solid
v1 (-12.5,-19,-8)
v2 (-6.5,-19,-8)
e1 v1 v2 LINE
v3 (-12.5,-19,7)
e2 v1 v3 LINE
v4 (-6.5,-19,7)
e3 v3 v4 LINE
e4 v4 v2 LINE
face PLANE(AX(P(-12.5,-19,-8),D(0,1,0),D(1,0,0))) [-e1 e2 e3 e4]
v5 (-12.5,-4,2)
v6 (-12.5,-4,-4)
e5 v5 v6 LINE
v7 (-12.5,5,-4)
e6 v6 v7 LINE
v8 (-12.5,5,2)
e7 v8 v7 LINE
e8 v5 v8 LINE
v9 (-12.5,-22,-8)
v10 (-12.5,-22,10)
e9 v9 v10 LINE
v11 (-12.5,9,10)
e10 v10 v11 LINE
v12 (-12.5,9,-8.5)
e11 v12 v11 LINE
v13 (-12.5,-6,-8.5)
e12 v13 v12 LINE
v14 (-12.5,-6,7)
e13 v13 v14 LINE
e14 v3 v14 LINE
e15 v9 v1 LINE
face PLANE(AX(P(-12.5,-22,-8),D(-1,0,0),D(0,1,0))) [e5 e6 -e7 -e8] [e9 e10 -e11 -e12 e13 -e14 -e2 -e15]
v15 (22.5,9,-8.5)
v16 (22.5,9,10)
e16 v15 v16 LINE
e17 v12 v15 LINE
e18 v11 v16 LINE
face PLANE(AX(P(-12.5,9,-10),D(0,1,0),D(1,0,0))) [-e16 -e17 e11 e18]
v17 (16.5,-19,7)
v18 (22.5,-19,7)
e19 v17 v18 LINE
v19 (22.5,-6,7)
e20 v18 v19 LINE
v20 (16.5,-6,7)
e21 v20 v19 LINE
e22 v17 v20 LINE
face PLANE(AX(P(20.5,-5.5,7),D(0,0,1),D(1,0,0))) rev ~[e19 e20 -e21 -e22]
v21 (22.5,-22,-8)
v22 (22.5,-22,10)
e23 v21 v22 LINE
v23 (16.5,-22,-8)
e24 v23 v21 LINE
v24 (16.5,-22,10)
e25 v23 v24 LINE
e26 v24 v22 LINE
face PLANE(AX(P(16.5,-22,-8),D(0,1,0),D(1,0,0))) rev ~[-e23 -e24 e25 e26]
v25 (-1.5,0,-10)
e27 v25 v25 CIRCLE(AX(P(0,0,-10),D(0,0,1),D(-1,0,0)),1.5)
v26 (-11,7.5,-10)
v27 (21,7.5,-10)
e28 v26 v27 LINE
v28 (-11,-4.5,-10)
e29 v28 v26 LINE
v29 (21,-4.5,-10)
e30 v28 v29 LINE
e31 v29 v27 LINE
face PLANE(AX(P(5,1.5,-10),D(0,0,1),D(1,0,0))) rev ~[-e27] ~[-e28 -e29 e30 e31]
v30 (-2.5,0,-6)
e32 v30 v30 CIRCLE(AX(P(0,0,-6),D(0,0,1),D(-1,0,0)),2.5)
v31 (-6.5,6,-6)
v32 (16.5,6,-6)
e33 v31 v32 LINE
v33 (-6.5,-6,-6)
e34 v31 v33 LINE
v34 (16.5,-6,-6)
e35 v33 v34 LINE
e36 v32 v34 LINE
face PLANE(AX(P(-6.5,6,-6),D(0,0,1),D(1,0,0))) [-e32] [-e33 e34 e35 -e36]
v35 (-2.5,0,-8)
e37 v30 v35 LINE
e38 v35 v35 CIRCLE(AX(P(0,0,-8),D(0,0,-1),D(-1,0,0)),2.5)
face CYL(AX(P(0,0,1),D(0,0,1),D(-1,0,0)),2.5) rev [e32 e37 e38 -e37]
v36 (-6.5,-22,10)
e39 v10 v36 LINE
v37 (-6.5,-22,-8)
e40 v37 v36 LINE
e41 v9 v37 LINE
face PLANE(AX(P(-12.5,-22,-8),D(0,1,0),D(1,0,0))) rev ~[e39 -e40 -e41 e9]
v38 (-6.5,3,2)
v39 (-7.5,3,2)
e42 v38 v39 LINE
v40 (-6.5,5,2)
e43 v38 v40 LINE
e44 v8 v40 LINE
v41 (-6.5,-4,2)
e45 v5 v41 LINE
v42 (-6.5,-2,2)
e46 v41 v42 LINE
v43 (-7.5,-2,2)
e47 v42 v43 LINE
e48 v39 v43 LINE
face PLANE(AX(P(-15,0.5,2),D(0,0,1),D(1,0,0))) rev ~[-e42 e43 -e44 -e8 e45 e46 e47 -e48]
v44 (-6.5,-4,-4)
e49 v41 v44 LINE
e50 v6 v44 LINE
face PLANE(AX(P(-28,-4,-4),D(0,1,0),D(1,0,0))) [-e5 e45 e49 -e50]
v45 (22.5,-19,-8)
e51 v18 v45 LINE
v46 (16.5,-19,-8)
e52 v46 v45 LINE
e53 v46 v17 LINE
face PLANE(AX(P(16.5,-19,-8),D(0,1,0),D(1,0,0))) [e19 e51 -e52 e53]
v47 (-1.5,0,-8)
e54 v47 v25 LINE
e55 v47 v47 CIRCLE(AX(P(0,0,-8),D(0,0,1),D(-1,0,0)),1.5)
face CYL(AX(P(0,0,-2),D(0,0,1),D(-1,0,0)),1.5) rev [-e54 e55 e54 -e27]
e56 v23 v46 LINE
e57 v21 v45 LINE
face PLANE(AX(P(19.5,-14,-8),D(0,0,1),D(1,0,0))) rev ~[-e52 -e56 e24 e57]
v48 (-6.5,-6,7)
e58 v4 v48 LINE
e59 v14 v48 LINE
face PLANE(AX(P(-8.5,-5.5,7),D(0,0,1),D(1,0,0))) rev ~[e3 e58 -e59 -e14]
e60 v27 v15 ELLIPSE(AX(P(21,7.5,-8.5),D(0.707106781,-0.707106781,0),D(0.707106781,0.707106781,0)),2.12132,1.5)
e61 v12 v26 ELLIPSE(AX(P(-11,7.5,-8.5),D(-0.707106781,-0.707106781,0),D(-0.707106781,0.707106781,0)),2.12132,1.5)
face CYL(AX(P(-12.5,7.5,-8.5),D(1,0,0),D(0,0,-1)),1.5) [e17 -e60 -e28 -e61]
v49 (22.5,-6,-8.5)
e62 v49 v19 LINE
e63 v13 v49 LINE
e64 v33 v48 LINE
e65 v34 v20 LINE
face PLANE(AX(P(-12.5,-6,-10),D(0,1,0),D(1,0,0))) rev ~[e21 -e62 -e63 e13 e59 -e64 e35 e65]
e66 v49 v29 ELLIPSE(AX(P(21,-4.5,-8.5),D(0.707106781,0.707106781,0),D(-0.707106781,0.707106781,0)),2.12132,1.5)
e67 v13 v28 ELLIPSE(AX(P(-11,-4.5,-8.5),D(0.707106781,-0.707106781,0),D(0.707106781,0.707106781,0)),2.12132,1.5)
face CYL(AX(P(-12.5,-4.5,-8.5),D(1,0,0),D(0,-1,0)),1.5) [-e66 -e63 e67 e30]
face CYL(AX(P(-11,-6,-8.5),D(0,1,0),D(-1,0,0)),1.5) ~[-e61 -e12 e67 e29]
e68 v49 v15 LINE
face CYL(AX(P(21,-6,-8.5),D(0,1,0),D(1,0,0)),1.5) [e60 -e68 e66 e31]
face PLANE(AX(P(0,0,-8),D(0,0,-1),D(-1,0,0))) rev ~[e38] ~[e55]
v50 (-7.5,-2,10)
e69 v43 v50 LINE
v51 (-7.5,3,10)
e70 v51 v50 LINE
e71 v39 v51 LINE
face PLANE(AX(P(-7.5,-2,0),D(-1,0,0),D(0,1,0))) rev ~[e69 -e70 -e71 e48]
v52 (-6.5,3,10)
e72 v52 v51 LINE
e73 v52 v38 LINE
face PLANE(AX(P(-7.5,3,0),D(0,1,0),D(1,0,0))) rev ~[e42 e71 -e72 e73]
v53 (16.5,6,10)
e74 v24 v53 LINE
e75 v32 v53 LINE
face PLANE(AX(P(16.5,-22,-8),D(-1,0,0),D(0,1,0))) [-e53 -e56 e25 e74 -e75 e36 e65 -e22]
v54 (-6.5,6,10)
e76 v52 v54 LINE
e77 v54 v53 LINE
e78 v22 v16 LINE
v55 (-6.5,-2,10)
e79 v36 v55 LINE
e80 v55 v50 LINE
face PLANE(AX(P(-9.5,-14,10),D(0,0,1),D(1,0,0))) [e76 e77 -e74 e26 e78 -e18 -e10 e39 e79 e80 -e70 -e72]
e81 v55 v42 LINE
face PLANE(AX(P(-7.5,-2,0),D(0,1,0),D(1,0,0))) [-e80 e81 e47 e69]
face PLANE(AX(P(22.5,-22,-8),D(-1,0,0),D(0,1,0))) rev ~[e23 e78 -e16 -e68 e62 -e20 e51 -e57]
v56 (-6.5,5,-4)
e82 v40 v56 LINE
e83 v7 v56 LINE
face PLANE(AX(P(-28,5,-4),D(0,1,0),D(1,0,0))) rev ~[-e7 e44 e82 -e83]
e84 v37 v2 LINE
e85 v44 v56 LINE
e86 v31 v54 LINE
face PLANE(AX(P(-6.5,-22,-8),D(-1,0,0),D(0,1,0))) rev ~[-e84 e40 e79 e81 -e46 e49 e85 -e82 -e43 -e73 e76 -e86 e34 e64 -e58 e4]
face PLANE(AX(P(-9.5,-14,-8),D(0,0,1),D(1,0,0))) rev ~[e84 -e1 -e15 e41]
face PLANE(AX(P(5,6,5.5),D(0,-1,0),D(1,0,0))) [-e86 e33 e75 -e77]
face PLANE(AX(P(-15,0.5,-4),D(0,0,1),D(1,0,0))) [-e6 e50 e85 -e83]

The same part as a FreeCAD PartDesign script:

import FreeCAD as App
import Part
import Sketcher
Q = App.Units.Quantity


def edges_at(feature, points):
    """Names of the edges that pass closest to the given points."""
    edges = feature.Shape.Edges
    near = lambda p: min(range(len(edges)), key=lambda i: edges[i].distToShape(Part.Vertex(*p))[0])
    return sorted({f"Edge{near(p) + 1}" for p in points})

doc = App.newDocument("Part")
body = doc.addObject("PartDesign::Body", "Body")

sketch1 = body.newObject("Sketcher::SketchObject", "Sketch")
sketch1.AttachmentSupport = (doc.getObject("XY_Plane"), [""])
sketch1.MapMode = "FlatFace"
sketch1.AttachmentOffset = App.Placement(App.Vector(0, 0, 1), App.Rotation())
sketch1.addGeometry(Part.Circle(App.Vector(0, 0, 0), App.Vector(0, 0, 1), 2.5), False)
sketch1.addConstraint([
    Sketcher.Constraint("Coincident", 0, 3, -1, 1),
    Sketcher.Constraint("Diameter", 0, Q("5 mm")),
])
pad1 = body.newObject("PartDesign::Pad", "Pad")
pad1.Profile = sketch1
pad1.Length = 9
pad1.Reversed = True
body2 = doc.addObject("PartDesign::Body", "Body001")

sketch2 = body2.newObject("Sketcher::SketchObject", "Sketch001")
sketch2.AttachmentSupport = (doc.getObject("XY_Plane001"), [""])
sketch2.MapMode = "FlatFace"
sketch2.AttachmentOffset = App.Placement(App.Vector(0, 0, -2), App.Rotation())
sketch2.addGeometry(Part.Circle(App.Vector(0, 0, 0), App.Vector(0, 0, 1), 1.5), False)
sketch2.addConstraint([
    Sketcher.Constraint("Coincident", 0, 3, -1, 1),
    Sketcher.Constraint("Diameter", 0, Q("3 mm")),
])
pad2 = body2.newObject("PartDesign::Pad", "Pad001")
pad2.Profile = sketch2
pad2.Length = 14
pad2.Reversed = True
doc.recompute()

boolean = body2.newObject("PartDesign::Boolean", "Boolean")
boolean.Type = "Fuse"
boolean.addObjects([body])
body3 = doc.addObject("PartDesign::Body", "Body002")

sketch3 = body3.newObject("Sketcher::SketchObject", "Sketch002")
sketch3.AttachmentSupport = (doc.getObject("XY_Plane002"), [""])
sketch3.MapMode = "FlatFace"
sketch3.addGeometry([
    Part.LineSegment(App.Vector(-7.5, 3, 0), App.Vector(-7.5, -2, 0)),
    Part.LineSegment(App.Vector(-7.5, -2, 0), App.Vector(-5.5, -2, 0)),
    Part.LineSegment(App.Vector(-5.5, -2, 0), App.Vector(-5.5, 3, 0)),
    Part.LineSegment(App.Vector(-5.5, 3, 0), App.Vector(-7.5, 3, 0)),
], False)
sketch3.addConstraint([
    Sketcher.Constraint("Coincident", 0, 2, 1, 1),
    Sketcher.Constraint("Coincident", 1, 2, 2, 1),
    Sketcher.Constraint("Coincident", 2, 2, 3, 1),
    Sketcher.Constraint("Coincident", 3, 2, 0, 1),
    Sketcher.Constraint("Vertical", 0),
    Sketcher.Constraint("Horizontal", 1),
    Sketcher.Constraint("Vertical", 2),
    Sketcher.Constraint("Horizontal", 3),
    Sketcher.Constraint("DistanceX", 1, 1, 1, 2, Q("2 mm")),
    Sketcher.Constraint("DistanceY", 0, 2, 0, 1, Q("5 mm")),
    Sketcher.Constraint("DistanceY", 0, 2, -1, 1, Q("2 mm")),
    Sketcher.Constraint("DistanceX", 0, 2, -1, 1, Q("7.5 mm")),
])
pad3 = body3.newObject("PartDesign::Pad", "Pad002")
pad3.Profile = sketch3
pad3.Length = 14
body4 = doc.addObject("PartDesign::Body", "Body003")

sketch4 = body4.newObject("Sketcher::SketchObject", "Sketch003")
sketch4.AttachmentSupport = (doc.getObject("XY_Plane003"), [""])
sketch4.MapMode = "FlatFace"
sketch4.AttachmentOffset = App.Placement(App.Vector(0, 0, -8), App.Rotation())
sketch4.addGeometry([
    Part.LineSegment(App.Vector(16, 8, 0), App.Vector(16, -19, 0)),
    Part.LineSegment(App.Vector(16, -19, 0), App.Vector(24, -19, 0)),
    Part.LineSegment(App.Vector(24, -19, 0), App.Vector(24, 8, 0)),
    Part.LineSegment(App.Vector(24, 8, 0), App.Vector(16, 8, 0)),
], False)
sketch4.addConstraint([
    Sketcher.Constraint("Coincident", 0, 2, 1, 1),
    Sketcher.Constraint("Coincident", 1, 2, 2, 1),
    Sketcher.Constraint("Coincident", 2, 2, 3, 1),
    Sketcher.Constraint("Coincident", 3, 2, 0, 1),
    Sketcher.Constraint("Vertical", 0),
    Sketcher.Constraint("Horizontal", 1),
    Sketcher.Constraint("Vertical", 2),
    Sketcher.Constraint("Horizontal", 3),
    Sketcher.Constraint("DistanceX", 1, 1, 1, 2, Q("8 mm")),
    Sketcher.Constraint("DistanceY", 0, 2, 0, 1, Q("27 mm")),
    Sketcher.Constraint("DistanceY", 0, 2, -1, 1, Q("19 mm")),
    Sketcher.Constraint("DistanceX", -1, 1, 0, 2, Q("16.5 mm")),
])
pad4 = body4.newObject("PartDesign::Pad", "Pad003")
pad4.Profile = sketch4
pad4.Length = 15
body5 = doc.addObject("PartDesign::Body", "Body004")

sketch5 = body5.newObject("Sketcher::SketchObject", "Sketch004")
sketch5.AttachmentSupport = (doc.getObject("XY_Plane004"), [""])
sketch5.MapMode = "FlatFace"
sketch5.AttachmentOffset = App.Placement(App.Vector(0, 0, -8), App.Rotation())
sketch5.addGeometry([
    Part.LineSegment(App.Vector(16, -6, 0), App.Vector(16, -22, 0)),
    Part.LineSegment(App.Vector(16, -22, 0), App.Vector(22, -22, 0)),
    Part.LineSegment(App.Vector(22, -22, 0), App.Vector(22, -6, 0)),
    Part.LineSegment(App.Vector(22, -6, 0), App.Vector(16, -6, 0)),
], False)
sketch5.addConstraint([
    Sketcher.Constraint("Coincident", 0, 2, 1, 1),
    Sketcher.Constraint("Coincident", 1, 2, 2, 1),
    Sketcher.Constraint("Coincident", 2, 2, 3, 1),
    Sketcher.Constraint("Coincident", 3, 2, 0, 1),
    Sketcher.Constraint("Vertical", 0),
    Sketcher.Constraint("Horizontal", 1),
    Sketcher.Constraint("Vertical", 2),
    Sketcher.Constraint("Horizontal", 3),
    Sketcher.Constraint("DistanceX", 1, 1, 1, 2, Q("6 mm")),
    Sketcher.Constraint("DistanceY", 0, 2, 0, 1, Q("16 mm")),
    Sketcher.Constraint("DistanceY", 0, 2, -1, 1, Q("22 mm")),
    Sketcher.Constraint("DistanceX", -1, 1, 0, 2, Q("16.5 mm")),
])
pad5 = body5.newObject("PartDesign::Pad", "Pad004")
pad5.Profile = sketch5
pad5.Length = 18
doc.recompute()

boolean2 = body5.newObject("PartDesign::Boolean", "Boolean001")
boolean2.Type = "Cut"
boolean2.addObjects([body4])
body6 = doc.addObject("PartDesign::Body", "Body005")

sketch6 = body6.newObject("Sketcher::SketchObject", "Sketch005")
sketch6.AttachmentSupport = (doc.getObject("XY_Plane005"), [""])
sketch6.MapMode = "FlatFace"
sketch6.AttachmentOffset = App.Placement(App.Vector(0, 0, -8), App.Rotation())
sketch6.addGeometry([
    Part.LineSegment(App.Vector(16, 8, 0), App.Vector(16, -19, 0)),
    Part.LineSegment(App.Vector(16, -19, 0), App.Vector(24, -19, 0)),
    Part.LineSegment(App.Vector(24, -19, 0), App.Vector(24, 8, 0)),
    Part.LineSegment(App.Vector(24, 8, 0), App.Vector(16, 8, 0)),
], False)
sketch6.addConstraint([
    Sketcher.Constraint("Coincident", 0, 2, 1, 1),
    Sketcher.Constraint("Coincident", 1, 2, 2, 1),
    Sketcher.Constraint("Coincident", 2, 2, 3, 1),
    Sketcher.Constraint("Coincident", 3, 2, 0, 1),
    Sketcher.Constraint("Vertical", 0),
    Sketcher.Constraint("Horizontal", 1),
    Sketcher.Constraint("Vertical", 2),
    Sketcher.Constraint("Horizontal", 3),
    Sketcher.Constraint("DistanceX", 1, 1, 1, 2, Q("8 mm")),
    Sketcher.Constraint("DistanceY", 0, 2, 0, 1, Q("27 mm")),
    Sketcher.Constraint("DistanceY", 0, 2, -1, 1, Q("19 mm")),
    Sketcher.Constraint("DistanceX", -1, 1, 0, 2, Q("16.5 mm")),
])
pad6 = body6.newObject("PartDesign::Pad", "Pad005")
pad6.Profile = sketch6
pad6.Length = 15
body7 = doc.addObject("PartDesign::Body", "Body006")

sketch7 = body7.newObject("Sketcher::SketchObject", "Sketch006")
sketch7.AttachmentSupport = (doc.getObject("XY_Plane006"), [""])
sketch7.MapMode = "FlatFace"
sketch7.AttachmentOffset = App.Placement(App.Vector(0, 0, -8), App.Rotation())
sketch7.addGeometry([
    Part.LineSegment(App.Vector(16, -6, 0), App.Vector(16, -22, 0)),
    Part.LineSegment(App.Vector(16, -22, 0), App.Vector(22, -22, 0)),
    Part.LineSegment(App.Vector(22, -22, 0), App.Vector(22, -6, 0)),
    Part.LineSegment(App.Vector(22, -6, 0), App.Vector(16, -6, 0)),
], False)
sketch7.addConstraint([
    Sketcher.Constraint("Coincident", 0, 2, 1, 1),
    Sketcher.Constraint("Coincident", 1, 2, 2, 1),
    Sketcher.Constraint("Coincident", 2, 2, 3, 1),
    Sketcher.Constraint("Coincident", 3, 2, 0, 1),
    Sketcher.Constraint("Vertical", 0),
    Sketcher.Constraint("Horizontal", 1),
    Sketcher.Constraint("Vertical", 2),
    Sketcher.Constraint("Horizontal", 3),
    Sketcher.Constraint("DistanceX", 1, 1, 1, 2, Q("6 mm")),
    Sketcher.Constraint("DistanceY", 0, 2, 0, 1, Q("16 mm")),
    Sketcher.Constraint("DistanceY", 0, 2, -1, 1, Q("22 mm")),
    Sketcher.Constraint("DistanceX", -1, 1, 0, 2, Q("16.5 mm")),
])
pad7 = body7.newObject("PartDesign::Pad", "Pad006")
pad7.Profile = sketch7
pad7.Length = 18
doc.recompute()

boolean3 = body7.newObject("PartDesign::Boolean", "Boolean002")
boolean3.Type = "Cut"
boolean3.addObjects([body6])
body8 = doc.addObject("PartDesign::Body", "Body007")
doc.recompute()

body7.Placement = App.Placement(App.Vector(-29, 0, 0), App.Rotation(App.Vector(0, 0, 1), 0))
boolean4 = body8.newObject("PartDesign::Boolean", "Boolean003")
boolean4.Type = "Fuse"
boolean4.addObjects([body7])
body9 = doc.addObject("PartDesign::Body", "Body008")

sketch8 = body9.newObject("Sketcher::SketchObject", "Sketch007")
sketch8.AttachmentSupport = (doc.getObject("XY_Plane008"), [""])
sketch8.MapMode = "FlatFace"
sketch8.AttachmentOffset = App.Placement(App.Vector(0, 0, -4), App.Rotation())
sketch8.addGeometry([
    Part.LineSegment(App.Vector(-28, 5, 0), App.Vector(-28, -4, 0)),
    Part.LineSegment(App.Vector(-28, -4, 0), App.Vector(-2, -4, 0)),
    Part.LineSegment(App.Vector(-2, -4, 0), App.Vector(-2, 5, 0)),
    Part.LineSegment(App.Vector(-2, 5, 0), App.Vector(-28, 5, 0)),
], False)
sketch8.addConstraint([
    Sketcher.Constraint("Coincident", 0, 2, 1, 1),
    Sketcher.Constraint("Coincident", 1, 2, 2, 1),
    Sketcher.Constraint("Coincident", 2, 2, 3, 1),
    Sketcher.Constraint("Coincident", 3, 2, 0, 1),
    Sketcher.Constraint("Vertical", 0),
    Sketcher.Constraint("Horizontal", 1),
    Sketcher.Constraint("Vertical", 2),
    Sketcher.Constraint("Horizontal", 3),
    Sketcher.Constraint("DistanceX", 1, 1, 1, 2, Q("26 mm")),
    Sketcher.Constraint("DistanceY", 0, 2, 0, 1, Q("9 mm")),
    Sketcher.Constraint("DistanceX", 0, 2, -1, 1, Q("28 mm")),
    Sketcher.Constraint("DistanceY", 0, 2, -1, 1, Q("4 mm")),
])
pad8 = body9.newObject("PartDesign::Pad", "Pad007")
pad8.Profile = sketch8
pad8.Length = 6
body10 = doc.addObject("PartDesign::Body", "Body009")

sketch9 = body10.newObject("Sketcher::SketchObject", "Sketch008")
sketch9.AttachmentSupport = (doc.getObject("XY_Plane009"), [""])
sketch9.MapMode = "FlatFace"
sketch9.addGeometry([
    Part.LineSegment(App.Vector(0, 23, 0), App.Vector(0, 0, 0)),
    Part.LineSegment(App.Vector(0, 0, 0), App.Vector(23, 0, 0)),
    Part.LineSegment(App.Vector(23, 0, 0), App.Vector(23, 23, 0)),
    Part.LineSegment(App.Vector(23, 23, 0), App.Vector(0, 23, 0)),
], False)
sketch9.addConstraint([
    Sketcher.Constraint("Coincident", 0, 2, 1, 1),
    Sketcher.Constraint("Coincident", 1, 2, 2, 1),
    Sketcher.Constraint("Coincident", 2, 2, 3, 1),
    Sketcher.Constraint("Coincident", 3, 2, 0, 1),
    Sketcher.Constraint("Vertical", 0),
    Sketcher.Constraint("Horizontal", 1),
    Sketcher.Constraint("Vertical", 2),
    Sketcher.Constraint("Horizontal", 3),
    Sketcher.Constraint("Coincident", 0, 2, -1, 1),
    Sketcher.Constraint("Equal", 3, 0),
    Sketcher.Constraint("DistanceX", 1, 1, 1, 2, Q("23 mm")),
])
pad9 = body10.newObject("PartDesign::Pad", "Pad008")
pad9.Profile = sketch9
pad9.Length = 12
body11 = doc.addObject("PartDesign::Body", "Body010")
doc.recompute()

body10.Placement = App.Placement(App.Vector(0, 0, 0), App.Rotation(App.Vector(1, 0, 0), 90))
boolean5 = body11.newObject("PartDesign::Boolean", "Boolean004")
boolean5.Type = "Fuse"
boolean5.addObjects([body10])
body12 = doc.addObject("PartDesign::Body", "Body011")
doc.recompute()

body11.Placement = App.Placement(App.Vector(-6.5, 6, -6), App.Rotation(App.Vector(0, 0, 1), 0))
boolean6 = body12.newObject("PartDesign::Boolean", "Boolean005")
boolean6.Type = "Fuse"
boolean6.addObjects([body11])
body13 = doc.addObject("PartDesign::Body", "Body012")

sketch10 = body13.newObject("Sketcher::SketchObject", "Sketch009")
sketch10.AttachmentSupport = (doc.getObject("XY_Plane012"), [""])
sketch10.MapMode = "FlatFace"
sketch10.AttachmentOffset = App.Placement(App.Vector(0, 0, -10), App.Rotation())
sketch10.addGeometry([
    Part.LineSegment(App.Vector(-12, 9, 0), App.Vector(-12, -6, 0)),
    Part.LineSegment(App.Vector(-12, -6, 0), App.Vector(22, -6, 0)),
    Part.LineSegment(App.Vector(22, -6, 0), App.Vector(22, 9, 0)),
    Part.LineSegment(App.Vector(22, 9, 0), App.Vector(-12, 9, 0)),
], False)
sketch10.addConstraint([
    Sketcher.Constraint("Coincident", 0, 2, 1, 1),
    Sketcher.Constraint("Coincident", 1, 2, 2, 1),
    Sketcher.Constraint("Coincident", 2, 2, 3, 1),
    Sketcher.Constraint("Coincident", 3, 2, 0, 1),
    Sketcher.Constraint("Vertical", 0),
    Sketcher.Constraint("Horizontal", 1),
    Sketcher.Constraint("Vertical", 2),
    Sketcher.Constraint("Horizontal", 3),
    Sketcher.Constraint("DistanceX", 1, 1, 1, 2, Q("35 mm")),
    Sketcher.Constraint("DistanceY", 0, 2, 0, 1, Q("15 mm")),
    Sketcher.Constraint("DistanceY", 0, 2, -1, 1, Q("6 mm")),
    Sketcher.Constraint("DistanceX", 0, 2, -1, 1, Q("12.5 mm")),
])
pad10 = body13.newObject("PartDesign::Pad", "Pad009")
pad10.Profile = sketch10
pad10.Length = 20
doc.recompute()

boolean7 = body13.newObject("PartDesign::Boolean", "Boolean006")
boolean7.Type = "Cut"
boolean7.addObjects([body12])
doc.recompute()

boolean8 = body13.newObject("PartDesign::Boolean", "Boolean007")
boolean8.Type = "Cut"
boolean8.addObjects([body9])
doc.recompute()

boolean9 = body13.newObject("PartDesign::Boolean", "Boolean008")
boolean9.Type = "Fuse"
boolean9.addObjects([body5])
doc.recompute()

boolean10 = body13.newObject("PartDesign::Boolean", "Boolean009")
boolean10.Type = "Fuse"
boolean10.addObjects([body8])
doc.recompute()

fillet = body13.newObject("PartDesign::Fillet", "Fillet")
fillet.Base = (boolean10, edges_at(boolean10, [
    (-12.5, 1.5, -10),
    (5, 9, -10),
    (22.5, 1.5, -10),
    (5, -6, -10),
]))
fillet.Radius = 1.5
doc.recompute()

boolean11 = body13.newObject("PartDesign::Boolean", "Boolean010")
boolean11.Type = "Cut"
boolean11.addObjects([body3])
doc.recompute()

boolean12 = body13.newObject("PartDesign::Boolean", "Boolean011")
boolean12.Type = "Cut"
boolean12.addObjects([body2])

doc.recompute()
